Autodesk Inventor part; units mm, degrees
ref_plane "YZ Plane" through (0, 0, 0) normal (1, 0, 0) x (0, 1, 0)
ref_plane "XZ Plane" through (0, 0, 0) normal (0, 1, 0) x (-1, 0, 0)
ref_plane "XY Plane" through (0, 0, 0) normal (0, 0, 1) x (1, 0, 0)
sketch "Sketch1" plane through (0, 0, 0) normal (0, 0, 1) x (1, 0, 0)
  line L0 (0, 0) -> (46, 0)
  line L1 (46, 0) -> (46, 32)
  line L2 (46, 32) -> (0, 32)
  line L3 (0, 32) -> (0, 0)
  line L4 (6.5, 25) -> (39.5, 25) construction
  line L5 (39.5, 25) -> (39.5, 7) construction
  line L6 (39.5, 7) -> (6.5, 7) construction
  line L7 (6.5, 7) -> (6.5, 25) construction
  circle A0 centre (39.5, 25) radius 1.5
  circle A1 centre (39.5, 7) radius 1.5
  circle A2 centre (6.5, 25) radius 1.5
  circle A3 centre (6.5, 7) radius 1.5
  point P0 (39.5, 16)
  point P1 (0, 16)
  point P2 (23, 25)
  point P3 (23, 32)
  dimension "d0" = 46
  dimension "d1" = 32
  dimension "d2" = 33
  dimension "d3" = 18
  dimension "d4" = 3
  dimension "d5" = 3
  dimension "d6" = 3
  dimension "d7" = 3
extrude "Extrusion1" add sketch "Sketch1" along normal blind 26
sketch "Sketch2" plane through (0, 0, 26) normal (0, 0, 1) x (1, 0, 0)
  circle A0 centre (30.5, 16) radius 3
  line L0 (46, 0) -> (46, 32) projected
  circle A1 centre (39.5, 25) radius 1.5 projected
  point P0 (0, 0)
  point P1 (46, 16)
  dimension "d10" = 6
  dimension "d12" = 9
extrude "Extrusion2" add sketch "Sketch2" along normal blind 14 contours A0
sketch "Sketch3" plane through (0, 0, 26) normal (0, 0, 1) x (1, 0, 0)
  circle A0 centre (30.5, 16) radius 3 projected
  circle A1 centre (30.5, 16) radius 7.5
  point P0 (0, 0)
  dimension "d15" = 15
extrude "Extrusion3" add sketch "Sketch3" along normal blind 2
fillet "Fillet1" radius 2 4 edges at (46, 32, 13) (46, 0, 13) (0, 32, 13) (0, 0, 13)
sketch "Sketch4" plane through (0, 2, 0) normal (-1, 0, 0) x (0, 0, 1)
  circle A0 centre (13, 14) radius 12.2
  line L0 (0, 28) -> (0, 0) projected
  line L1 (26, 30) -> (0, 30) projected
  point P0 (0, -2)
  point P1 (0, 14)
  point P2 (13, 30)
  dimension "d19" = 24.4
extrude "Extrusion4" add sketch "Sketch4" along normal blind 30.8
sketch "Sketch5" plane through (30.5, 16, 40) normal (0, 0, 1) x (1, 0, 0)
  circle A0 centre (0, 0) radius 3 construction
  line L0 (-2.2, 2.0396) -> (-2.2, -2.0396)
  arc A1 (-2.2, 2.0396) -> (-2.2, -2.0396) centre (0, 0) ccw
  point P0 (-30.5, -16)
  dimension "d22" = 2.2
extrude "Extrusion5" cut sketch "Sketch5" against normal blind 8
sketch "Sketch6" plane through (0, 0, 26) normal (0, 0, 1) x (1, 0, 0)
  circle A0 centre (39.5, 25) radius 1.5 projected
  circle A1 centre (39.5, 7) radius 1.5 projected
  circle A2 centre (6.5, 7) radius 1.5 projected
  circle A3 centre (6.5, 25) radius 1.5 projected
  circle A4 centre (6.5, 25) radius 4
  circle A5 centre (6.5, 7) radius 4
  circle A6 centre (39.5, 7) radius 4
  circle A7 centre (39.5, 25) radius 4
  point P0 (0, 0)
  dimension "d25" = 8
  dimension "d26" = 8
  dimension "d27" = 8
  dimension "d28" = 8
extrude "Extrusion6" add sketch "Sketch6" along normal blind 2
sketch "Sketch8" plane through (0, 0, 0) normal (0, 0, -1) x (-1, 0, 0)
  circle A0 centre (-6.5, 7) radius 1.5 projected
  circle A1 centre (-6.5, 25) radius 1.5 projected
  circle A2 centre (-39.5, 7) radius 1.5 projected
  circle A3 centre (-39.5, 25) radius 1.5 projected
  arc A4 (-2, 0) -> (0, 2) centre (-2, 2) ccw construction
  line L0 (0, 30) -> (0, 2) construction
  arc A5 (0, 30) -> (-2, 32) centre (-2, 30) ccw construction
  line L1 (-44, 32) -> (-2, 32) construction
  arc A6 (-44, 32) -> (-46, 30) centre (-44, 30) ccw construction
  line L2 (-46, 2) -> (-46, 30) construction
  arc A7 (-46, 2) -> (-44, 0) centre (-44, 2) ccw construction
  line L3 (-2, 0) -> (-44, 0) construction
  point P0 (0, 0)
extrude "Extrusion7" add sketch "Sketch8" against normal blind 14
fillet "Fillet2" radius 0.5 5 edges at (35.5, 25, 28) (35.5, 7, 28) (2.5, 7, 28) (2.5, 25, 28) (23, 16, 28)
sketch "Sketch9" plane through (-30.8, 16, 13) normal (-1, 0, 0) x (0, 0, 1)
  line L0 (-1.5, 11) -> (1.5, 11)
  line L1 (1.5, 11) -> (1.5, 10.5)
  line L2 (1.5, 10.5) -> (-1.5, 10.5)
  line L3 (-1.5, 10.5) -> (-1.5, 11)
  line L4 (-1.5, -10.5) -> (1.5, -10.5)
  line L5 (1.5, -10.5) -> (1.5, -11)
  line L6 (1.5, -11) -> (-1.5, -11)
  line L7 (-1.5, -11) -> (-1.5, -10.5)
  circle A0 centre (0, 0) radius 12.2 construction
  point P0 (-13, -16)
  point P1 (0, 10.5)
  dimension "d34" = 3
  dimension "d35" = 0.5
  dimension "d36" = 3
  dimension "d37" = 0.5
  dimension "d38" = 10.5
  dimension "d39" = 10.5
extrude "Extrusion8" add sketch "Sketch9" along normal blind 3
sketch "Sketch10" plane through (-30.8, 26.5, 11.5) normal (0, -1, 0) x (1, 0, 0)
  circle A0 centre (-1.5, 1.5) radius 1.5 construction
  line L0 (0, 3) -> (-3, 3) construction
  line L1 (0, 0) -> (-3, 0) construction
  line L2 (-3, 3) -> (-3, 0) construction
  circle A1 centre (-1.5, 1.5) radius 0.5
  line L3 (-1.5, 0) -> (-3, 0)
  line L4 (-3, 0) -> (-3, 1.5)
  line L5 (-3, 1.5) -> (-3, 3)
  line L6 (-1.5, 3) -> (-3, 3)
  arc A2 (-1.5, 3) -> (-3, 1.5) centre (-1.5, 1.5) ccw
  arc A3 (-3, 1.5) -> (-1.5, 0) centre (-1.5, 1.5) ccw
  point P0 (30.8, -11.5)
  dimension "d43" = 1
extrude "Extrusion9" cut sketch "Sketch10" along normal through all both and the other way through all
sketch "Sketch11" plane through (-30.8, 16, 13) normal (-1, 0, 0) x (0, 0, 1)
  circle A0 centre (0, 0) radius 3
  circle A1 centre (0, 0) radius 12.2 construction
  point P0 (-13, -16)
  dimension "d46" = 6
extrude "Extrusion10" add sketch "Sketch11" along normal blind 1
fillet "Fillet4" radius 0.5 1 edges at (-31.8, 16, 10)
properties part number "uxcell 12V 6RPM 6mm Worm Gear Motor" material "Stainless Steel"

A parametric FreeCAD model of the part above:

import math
import FreeCAD as App
import Part
import Sketcher
Q = App.Units.Quantity


def edges_at(feature, points):
    """Names of the edges that pass closest to the given points."""
    edges = feature.Shape.Edges
    near = lambda p: min(range(len(edges)), key=lambda i: edges[i].distToShape(Part.Vertex(*p))[0])
    return sorted({f"Edge{near(p) + 1}" for p in points})


def add_polygon(sketch, points):
    """Adds a closed chain of lines whose ends are joined by coincident constraints."""
    first, n = sketch.GeometryCount, len(points)
    for a, b in zip(points, points[1:] + points[:1]):
        sketch.addGeometry(Part.LineSegment(App.Vector(*a, 0), App.Vector(*b, 0)), False)
    for i in range(n):
        sketch.addConstraint(Sketcher.Constraint("Coincident", first + i, 2, first + (i + 1) % n, 1))

doc = App.newDocument("Part")
body = doc.addObject("PartDesign::Body", "Body")

# Sketch on XY plane
sketch1 = body.newObject("Sketcher::SketchObject", "Sketch")
sketch1.AttachmentSupport = (doc.getObject("XY_Plane"), [""])
sketch1.MapMode = "FlatFace"
add_polygon(sketch1, [(0, 32), (0, 0), (46, 0), (46, 32)])  # lines 0-3
sketch1.addGeometry(Part.Circle(App.Vector(6.5, 7, 0), App.Vector(0, 0, 1), 1.5), False)  # 4
sketch1.addGeometry(Part.Circle(App.Vector(39.5, 7, 0), App.Vector(0, 0, 1), 1.5), False)  # 5
sketch1.addGeometry(Part.Circle(App.Vector(6.5, 25, 0), App.Vector(0, 0, 1), 1.5), False)  # 6
sketch1.addGeometry(Part.Circle(App.Vector(39.5, 25, 0), App.Vector(0, 0, 1), 1.5), False)  # 7
sketch1.addConstraint([
    Sketcher.Constraint("Vertical", 0),
    Sketcher.Constraint("Horizontal", 1),
    Sketcher.Constraint("Vertical", 2),
    Sketcher.Constraint("Horizontal", 3),
    Sketcher.Constraint("Coincident", 0, 2, -1, 1),
    Sketcher.Constraint("Equal", 4, 5),
    Sketcher.Constraint("Equal", 5, 6),
    Sketcher.Constraint("Equal", 6, 7),
    Sketcher.Constraint("Horizontal", 4, 3, 5, 3),
    Sketcher.Constraint("Horizontal", 6, 3, 7, 3),
    Sketcher.Constraint("Vertical", 4, 3, 6, 3),
    Sketcher.Constraint("Vertical", 5, 3, 7, 3),
    Sketcher.Constraint("Diameter", 4, Q("3 mm")),
    Sketcher.Constraint("DistanceX", 1, 1, 1, 2, Q("46 mm")),
    Sketcher.Constraint("DistanceY", 0, 2, 0, 1, Q("32 mm")),
    Sketcher.Constraint("DistanceX", 4, 3, 5, 3, Q("33 mm")),
    Sketcher.Constraint("DistanceY", 4, 3, 6, 3, Q("18 mm")),
    Sketcher.Constraint("DistanceY", -1, 1, 4, 3, Q("7 mm")),
    Sketcher.Constraint("DistanceX", -1, 1, 4, 3, Q("6.5 mm")),
])
pad1 = body.newObject("PartDesign::Pad", "Pad")
pad1.Profile = sketch1
pad1.Length = 26

# Sketch on XY plane
sketch2 = body.newObject("Sketcher::SketchObject", "Sketch001")
sketch2.AttachmentSupport = (doc.getObject("XY_Plane"), [""])
sketch2.MapMode = "FlatFace"
sketch2.AttachmentOffset = App.Placement(App.Vector(0, 0, 26), App.Rotation())
sketch2.addGeometry(Part.Circle(App.Vector(30.5, 16, 0), App.Vector(0, 0, 1), 3), False)
sketch2.addConstraint([
    Sketcher.Constraint("Diameter", 0, Q("6 mm")),
    Sketcher.Constraint("DistanceY", -1, 1, 0, 3, Q("16 mm")),
    Sketcher.Constraint("DistanceX", -1, 1, 0, 3, Q("30.5 mm")),
])
pad2 = body.newObject("PartDesign::Pad", "Pad001")
pad2.Profile = sketch2
pad2.Length = 14

# Sketch on XY plane
sketch3 = body.newObject("Sketcher::SketchObject", "Sketch002")
sketch3.AttachmentSupport = (doc.getObject("XY_Plane"), [""])
sketch3.MapMode = "FlatFace"
sketch3.AttachmentOffset = App.Placement(App.Vector(0, 0, 26), App.Rotation())
sketch3.addGeometry([
    Part.Circle(App.Vector(30.5, 16, 0), App.Vector(0, 0, 1), 7.5),
    Part.Circle(App.Vector(30.5, 16, 0), App.Vector(0, 0, 1), 3),
], False)
sketch3.addConstraint([
    Sketcher.Constraint("Coincident", 1, 3, 0, 3),
    Sketcher.Constraint("Diameter", 0, Q("15 mm")),
    Sketcher.Constraint("Diameter", 1, Q("6 mm")),
    Sketcher.Constraint("DistanceY", -1, 1, 0, 3, Q("16 mm")),
    Sketcher.Constraint("DistanceX", -1, 1, 0, 3, Q("30.5 mm")),
])
pad3 = body.newObject("PartDesign::Pad", "Pad002")
pad3.Profile = sketch3
pad3.Length = 2
doc.recompute()

fillet = body.newObject("PartDesign::Fillet", "Fillet")
fillet.Base = (pad3, edges_at(pad3, [
    (46, 32, 13),
    (46, 0, 13),
    (0, 32, 13),
    (0, 0, 13),
]))
fillet.Radius = 2

# Sketch on YZ plane
sketch4 = body.newObject("Sketcher::SketchObject", "Sketch003")
sketch4.AttachmentSupport = (doc.getObject("YZ_Plane"), [""])
sketch4.MapMode = "FlatFace"
sketch4.addGeometry(Part.Circle(App.Vector(16, 13, 0), App.Vector(0, 0, 1), 12), False)
sketch4.addConstraint([
    Sketcher.Constraint("Diameter", 0, Q("24.4 mm")),
    Sketcher.Constraint("DistanceX", -1, 1, 0, 3, Q("16 mm")),
    Sketcher.Constraint("DistanceY", -1, 1, 0, 3, Q("13 mm")),
])
pad4 = body.newObject("PartDesign::Pad", "Pad003")
pad4.Profile = sketch4
pad4.Length = 30.8
pad4.Reversed = True

# Sketch on XY plane
sketch5 = body.newObject("Sketcher::SketchObject", "Sketch004")
sketch5.AttachmentSupport = (doc.getObject("XY_Plane"), [""])
sketch5.MapMode = "FlatFace"
sketch5.AttachmentOffset = App.Placement(App.Vector(0, 0, 40), App.Rotation())
sketch5.addGeometry([
    Part.LineSegment(App.Vector(28.3, 14, 0), App.Vector(28.3, 18, 0)),
    Part.ArcOfCircle(Part.Circle(App.Vector(30.5, 16, 0), App.Vector(0, 0, 1), 3), math.radians(137), math.radians(223)),
], False)
sketch5.addConstraint([
    Sketcher.Constraint("Coincident", 0, 1, 1, 2),
    Sketcher.Constraint("Coincident", 1, 1, 0, 2),
    Sketcher.Constraint("Vertical", 0),
    Sketcher.Constraint("Radius", 1, Q("3 mm")),
    Sketcher.Constraint("DistanceX", 0, 1, 1, 3, Q("2.2 mm")),
    Sketcher.Constraint("DistanceY", -1, 1, 1, 3, Q("16 mm")),
    Sketcher.Constraint("DistanceX", -1, 1, 1, 3, Q("30.5 mm")),
])
pocket1 = body.newObject("PartDesign::Pocket", "Pocket")
pocket1.Profile = sketch5
pocket1.Length = 8

# Sketch on XY plane
sketch6 = body.newObject("Sketcher::SketchObject", "Sketch005")
sketch6.AttachmentSupport = (doc.getObject("XY_Plane"), [""])
sketch6.MapMode = "FlatFace"
sketch6.AttachmentOffset = App.Placement(App.Vector(0, 0, 26), App.Rotation())
sketch6.addGeometry([
    Part.Circle(App.Vector(6.5, 25, 0), App.Vector(0, 0, 1), 4),  # 0
    Part.Circle(App.Vector(6.5, 25, 0), App.Vector(0, 0, 1), 1.5),  # 1
    Part.Circle(App.Vector(6.5, 7, 0), App.Vector(0, 0, 1), 4),  # 2
    Part.Circle(App.Vector(6.5, 7, 0), App.Vector(0, 0, 1), 1.5),  # 3
    Part.Circle(App.Vector(39.5, 7, 0), App.Vector(0, 0, 1), 4),  # 4
    Part.Circle(App.Vector(39.5, 7, 0), App.Vector(0, 0, 1), 1.5),  # 5
    Part.Circle(App.Vector(39.5, 25, 0), App.Vector(0, 0, 1), 4),  # 6
    Part.Circle(App.Vector(39.5, 25, 0), App.Vector(0, 0, 1), 1.5),  # 7
], False)
sketch6.addConstraint([
    Sketcher.Constraint("Coincident", 1, 3, 0, 3),
    Sketcher.Constraint("Coincident", 3, 3, 2, 3),
    Sketcher.Constraint("Coincident", 5, 3, 4, 3),
    Sketcher.Constraint("Coincident", 7, 3, 6, 3),
    Sketcher.Constraint("Equal", 0, 2),
    Sketcher.Constraint("Equal", 1, 3),
    Sketcher.Constraint("Equal", 2, 4),
    Sketcher.Constraint("Equal", 3, 5),
    Sketcher.Constraint("Equal", 4, 6),
    Sketcher.Constraint("Equal", 5, 7),
    Sketcher.Constraint("Horizontal", 3, 3, 4, 3),
    Sketcher.Constraint("Horizontal", 1, 3, 6, 3),
    Sketcher.Constraint("Vertical", 1, 3, 2, 3),
    Sketcher.Constraint("Vertical", 5, 3, 6, 3),
    Sketcher.Constraint("Diameter", 0, Q("8 mm")),
    Sketcher.Constraint("Diameter", 1, Q("3 mm")),
    Sketcher.Constraint("DistanceY", -1, 1, 0, 3, Q("25 mm")),
    Sketcher.Constraint("DistanceY", -1, 1, 2, 3, Q("7 mm")),
    Sketcher.Constraint("DistanceX", 2, 3, 4, 3, Q("33 mm")),
    Sketcher.Constraint("DistanceX", -1, 1, 0, 3, Q("6.5 mm")),
])
pad5 = body.newObject("PartDesign::Pad", "Pad004")
pad5.Profile = sketch6
pad5.Length = 2

# Sketch on XY plane
sketch7 = body.newObject("Sketcher::SketchObject", "Sketch006")
sketch7.AttachmentSupport = (doc.getObject("XY_Plane"), [""])
sketch7.MapMode = "FlatFace"
sketch7.addGeometry([
    Part.Circle(App.Vector(6.5, 7, 0), App.Vector(0, 0, 1), 1.5),
    Part.Circle(App.Vector(6.5, 25, 0), App.Vector(0, 0, 1), 1.5),
    Part.Circle(App.Vector(39.5, 7, 0), App.Vector(0, 0, 1), 1.5),
    Part.Circle(App.Vector(39.5, 25, 0), App.Vector(0, 0, 1), 1.5),
], False)
sketch7.addConstraint([
    Sketcher.Constraint("Equal", 0, 1),
    Sketcher.Constraint("Equal", 1, 2),
    Sketcher.Constraint("Equal", 2, 3),
    Sketcher.Constraint("Horizontal", 0, 3, 2, 3),
    Sketcher.Constraint("Horizontal", 1, 3, 3, 3),
    Sketcher.Constraint("Vertical", 0, 3, 1, 3),
    Sketcher.Constraint("Vertical", 2, 3, 3, 3),
    Sketcher.Constraint("Diameter", 0, Q("3 mm")),
    Sketcher.Constraint("DistanceY", -1, 1, 0, 3, Q("7 mm")),
    Sketcher.Constraint("DistanceY", -1, 1, 1, 3, Q("25 mm")),
    Sketcher.Constraint("DistanceX", 0, 3, 2, 3, Q("33 mm")),
    Sketcher.Constraint("DistanceX", -1, 1, 0, 3, Q("6.5 mm")),
])
pad6 = body.newObject("PartDesign::Pad", "Pad005")
pad6.Profile = sketch7
pad6.Length = 14
doc.recompute()

fillet2 = body.newObject("PartDesign::Fillet", "Fillet001")
fillet2.Base = (pad6, edges_at(pad6, [
    (35.5, 25, 28),
    (35.5, 7, 28),
    (2.5, 7, 28),
    (2.5, 25, 28),
    (23, 16, 28),
]))
fillet2.Radius = 0.5

# Sketch on YZ plane
sketch8 = body.newObject("Sketcher::SketchObject", "Sketch007")
sketch8.AttachmentSupport = (doc.getObject("YZ_Plane"), [""])
sketch8.MapMode = "FlatFace"
sketch8.AttachmentOffset = App.Placement(App.Vector(0, 0, -30.8), App.Rotation())
add_polygon(sketch8, [(27, 14.5), (27, 11.5), (26.5, 11.5), (26.5, 14.5)])  # lines 0-3
add_polygon(sketch8, [(5.5, 14.5), (5.5, 11.5), (5, 11.5), (5, 14.5)])  # lines 4-7
sketch8.addConstraint([
    Sketcher.Constraint("Vertical", 0),
    Sketcher.Constraint("Horizontal", 1),
    Sketcher.Constraint("Vertical", 2),
    Sketcher.Constraint("Horizontal", 3),
    Sketcher.Constraint("Vertical", 4),
    Sketcher.Constraint("Horizontal", 5),
    Sketcher.Constraint("Vertical", 6),
    Sketcher.Constraint("Horizontal", 7),
    Sketcher.Constraint("Horizontal", 1, 2, 4, 2),
    Sketcher.Constraint("Horizontal", 3, 2, 6, 2),
    Sketcher.Constraint("Equal", 3, 5),
    Sketcher.Constraint("DistanceY", 0, 2, 0, 1, Q("3 mm")),
    Sketcher.Constraint("DistanceX", 1, 2, 1, 1, Q("0.5 mm")),
    Sketcher.Constraint("DistanceX", -1, 1, 0, 2, Q("27 mm")),
    Sketcher.Constraint("DistanceX", -1, 1, 5, 2, Q("5 mm")),
    Sketcher.Constraint("DistanceY", -1, 1, 0, 2, Q("11.5 mm")),
])
pad7 = body.newObject("PartDesign::Pad", "Pad006")
pad7.Profile = sketch8
pad7.Length = 3
pad7.Reversed = True

# Sketch on XZ plane
sketch9 = body.newObject("Sketcher::SketchObject", "Sketch008")
sketch9.AttachmentSupport = (doc.getObject("XZ_Plane"), [""])
sketch9.MapMode = "FlatFace"
sketch9.AttachmentOffset = App.Placement(App.Vector(0, 0, -26.5), App.Rotation())
sketch9.addGeometry([
    Part.Circle(App.Vector(-32.3, 13, 0), App.Vector(0, 0, 1), 0.5),  # 0
    Part.LineSegment(App.Vector(-33.8, 14.5, 0), App.Vector(-33.8, 13, 0)),  # 1
    Part.ArcOfCircle(Part.Circle(App.Vector(-32.3, 13, 0), App.Vector(0, 0, 1), 1.5), math.radians(90), math.radians(180)),  # 2
    Part.LineSegment(App.Vector(-32.3, 14.5, 0), App.Vector(-33.8, 14.5, 0)),  # 3
    Part.LineSegment(App.Vector(-33.8, 11.5, 0), App.Vector(-32.3, 11.5, 0)),  # 4
    Part.ArcOfCircle(Part.Circle(App.Vector(-32.3, 13, 0), App.Vector(0, 0, 1), 1.5), math.radians(180), math.radians(270)),  # 5
    Part.LineSegment(App.Vector(-33.8, 13, 0), App.Vector(-33.8, 11.5, 0)),  # 6
], False)
sketch9.addConstraint([
    Sketcher.Constraint("Tangent", 1, 2, 2, 2),
    Sketcher.Constraint("Tangent", 2, 1, 3, 1),
    Sketcher.Constraint("Coincident", 3, 2, 1, 1),
    Sketcher.Constraint("Tangent", 4, 2, 5, 2),
    Sketcher.Constraint("Tangent", 5, 1, 6, 1),
    Sketcher.Constraint("Coincident", 6, 2, 4, 1),
    Sketcher.Constraint("Vertical", 1),
    Sketcher.Constraint("Horizontal", 3),
    Sketcher.Constraint("Horizontal", 4),
    Sketcher.Constraint("Vertical", 6),
    Sketcher.Constraint("Coincident", 2, 3, 0, 3),
    Sketcher.Constraint("Coincident", 5, 3, 0, 3),
    Sketcher.Constraint("Equal", 2, 5),
    Sketcher.Constraint("Diameter", 0, Q("1 mm")),
    Sketcher.Constraint("Radius", 2, Q("1.5 mm")),
    Sketcher.Constraint("DistanceY", -1, 1, 0, 3, Q("13 mm")),
    Sketcher.Constraint("DistanceX", 0, 3, -1, 1, Q("32.3 mm")),
])
pocket2 = body.newObject("PartDesign::Pocket", "Pocket001")
pocket2.Profile = sketch9
pocket2.Type = "ThroughAll"
pocket2.Midplane = True

# Sketch on YZ plane
sketch10 = body.newObject("Sketcher::SketchObject", "Sketch009")
sketch10.AttachmentSupport = (doc.getObject("YZ_Plane"), [""])
sketch10.MapMode = "FlatFace"
sketch10.AttachmentOffset = App.Placement(App.Vector(0, 0, -30.8), App.Rotation())
sketch10.addGeometry(Part.Circle(App.Vector(16, 13, 0), App.Vector(0, 0, 1), 3), False)
sketch10.addConstraint([
    Sketcher.Constraint("Diameter", 0, Q("6 mm")),
    Sketcher.Constraint("DistanceX", -1, 1, 0, 3, Q("16 mm")),
    Sketcher.Constraint("DistanceY", -1, 1, 0, 3, Q("13 mm")),
])
pad8 = body.newObject("PartDesign::Pad", "Pad007")
pad8.Profile = sketch10
pad8.Length = 1
pad8.Reversed = True
doc.recompute()

fillet3 = body.newObject("PartDesign::Fillet", "Fillet002")
fillet3.Base = (pad8, edges_at(pad8, [(-31.8, 16, 10)]))
fillet3.Radius = 0.5

doc.recompute()
